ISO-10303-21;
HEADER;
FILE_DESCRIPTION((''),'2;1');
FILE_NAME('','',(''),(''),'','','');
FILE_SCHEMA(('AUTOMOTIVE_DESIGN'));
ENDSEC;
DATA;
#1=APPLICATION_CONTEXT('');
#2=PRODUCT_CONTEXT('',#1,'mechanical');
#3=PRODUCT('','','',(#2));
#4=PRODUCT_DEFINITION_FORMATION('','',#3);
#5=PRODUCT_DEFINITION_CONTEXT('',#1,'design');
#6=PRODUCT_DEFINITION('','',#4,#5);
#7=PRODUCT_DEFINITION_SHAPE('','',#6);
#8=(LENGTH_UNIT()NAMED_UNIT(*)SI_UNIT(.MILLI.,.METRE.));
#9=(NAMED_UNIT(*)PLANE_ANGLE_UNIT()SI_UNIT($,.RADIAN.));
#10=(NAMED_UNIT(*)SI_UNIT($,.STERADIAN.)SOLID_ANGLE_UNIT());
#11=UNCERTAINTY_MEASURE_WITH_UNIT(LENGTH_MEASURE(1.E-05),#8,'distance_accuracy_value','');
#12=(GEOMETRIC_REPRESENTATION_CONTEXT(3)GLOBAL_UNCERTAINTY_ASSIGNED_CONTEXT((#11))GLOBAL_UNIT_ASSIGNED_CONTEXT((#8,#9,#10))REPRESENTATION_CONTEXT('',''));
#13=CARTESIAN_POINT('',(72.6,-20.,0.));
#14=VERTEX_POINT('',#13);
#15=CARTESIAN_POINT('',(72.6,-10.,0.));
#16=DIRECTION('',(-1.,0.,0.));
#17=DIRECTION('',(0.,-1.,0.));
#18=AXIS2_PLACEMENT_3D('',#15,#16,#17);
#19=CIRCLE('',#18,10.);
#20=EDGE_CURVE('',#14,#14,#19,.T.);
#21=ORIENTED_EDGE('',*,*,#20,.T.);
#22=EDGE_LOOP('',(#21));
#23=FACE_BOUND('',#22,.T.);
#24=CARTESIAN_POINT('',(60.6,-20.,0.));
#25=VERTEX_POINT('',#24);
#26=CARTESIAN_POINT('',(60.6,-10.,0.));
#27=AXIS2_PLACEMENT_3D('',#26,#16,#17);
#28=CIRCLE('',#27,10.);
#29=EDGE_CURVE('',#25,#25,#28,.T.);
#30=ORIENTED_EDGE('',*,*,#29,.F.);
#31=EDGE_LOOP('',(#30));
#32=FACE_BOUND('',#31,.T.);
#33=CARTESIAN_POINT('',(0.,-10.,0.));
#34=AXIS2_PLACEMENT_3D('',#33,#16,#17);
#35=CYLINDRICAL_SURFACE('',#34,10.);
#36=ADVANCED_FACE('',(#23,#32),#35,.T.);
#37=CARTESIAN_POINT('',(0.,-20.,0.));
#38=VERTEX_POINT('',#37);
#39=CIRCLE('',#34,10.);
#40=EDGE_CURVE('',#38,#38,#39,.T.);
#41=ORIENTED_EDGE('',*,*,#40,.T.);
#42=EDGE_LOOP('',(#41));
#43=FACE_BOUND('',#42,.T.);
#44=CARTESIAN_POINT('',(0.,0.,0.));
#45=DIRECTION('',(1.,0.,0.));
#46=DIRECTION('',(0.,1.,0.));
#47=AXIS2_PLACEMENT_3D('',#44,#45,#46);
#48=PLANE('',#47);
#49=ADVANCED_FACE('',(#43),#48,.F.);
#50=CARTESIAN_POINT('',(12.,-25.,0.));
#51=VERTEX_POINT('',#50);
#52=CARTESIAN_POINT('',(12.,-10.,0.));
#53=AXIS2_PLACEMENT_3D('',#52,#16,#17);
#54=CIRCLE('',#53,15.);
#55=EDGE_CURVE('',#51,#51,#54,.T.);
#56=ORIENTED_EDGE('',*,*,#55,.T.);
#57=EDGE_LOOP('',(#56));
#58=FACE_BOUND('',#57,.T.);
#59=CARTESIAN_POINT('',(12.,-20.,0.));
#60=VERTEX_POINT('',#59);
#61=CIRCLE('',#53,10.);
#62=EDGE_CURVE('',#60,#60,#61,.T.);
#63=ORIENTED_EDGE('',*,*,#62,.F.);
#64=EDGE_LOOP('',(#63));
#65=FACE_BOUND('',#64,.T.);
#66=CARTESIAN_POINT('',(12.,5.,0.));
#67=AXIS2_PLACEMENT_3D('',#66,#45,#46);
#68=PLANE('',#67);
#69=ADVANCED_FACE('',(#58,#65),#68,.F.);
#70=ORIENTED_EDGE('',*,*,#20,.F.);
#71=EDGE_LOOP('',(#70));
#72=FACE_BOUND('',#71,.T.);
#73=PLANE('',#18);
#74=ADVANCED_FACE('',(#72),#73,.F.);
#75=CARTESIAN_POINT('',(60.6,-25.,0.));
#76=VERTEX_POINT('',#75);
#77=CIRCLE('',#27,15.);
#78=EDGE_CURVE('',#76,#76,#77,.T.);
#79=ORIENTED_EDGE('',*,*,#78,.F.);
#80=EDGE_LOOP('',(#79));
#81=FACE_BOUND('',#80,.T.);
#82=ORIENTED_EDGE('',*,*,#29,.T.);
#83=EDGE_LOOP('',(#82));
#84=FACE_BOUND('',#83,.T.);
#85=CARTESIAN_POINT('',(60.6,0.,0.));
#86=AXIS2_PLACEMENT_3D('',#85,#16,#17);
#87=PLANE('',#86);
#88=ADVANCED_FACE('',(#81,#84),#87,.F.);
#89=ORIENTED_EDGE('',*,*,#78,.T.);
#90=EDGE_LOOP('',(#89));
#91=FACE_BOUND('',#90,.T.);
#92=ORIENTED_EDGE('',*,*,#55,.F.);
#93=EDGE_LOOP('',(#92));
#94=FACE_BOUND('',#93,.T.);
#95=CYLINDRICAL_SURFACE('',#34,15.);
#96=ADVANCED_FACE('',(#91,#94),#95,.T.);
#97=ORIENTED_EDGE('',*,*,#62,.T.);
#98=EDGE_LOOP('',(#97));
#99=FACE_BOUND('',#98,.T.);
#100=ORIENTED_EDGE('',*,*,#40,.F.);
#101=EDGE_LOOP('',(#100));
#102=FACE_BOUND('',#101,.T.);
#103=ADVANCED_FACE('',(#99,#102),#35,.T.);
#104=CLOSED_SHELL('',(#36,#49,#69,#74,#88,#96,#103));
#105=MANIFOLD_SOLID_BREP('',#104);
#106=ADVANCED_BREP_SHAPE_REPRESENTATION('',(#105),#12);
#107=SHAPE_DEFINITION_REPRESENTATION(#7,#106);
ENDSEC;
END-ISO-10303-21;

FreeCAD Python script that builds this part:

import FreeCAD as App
import Part
import Sketcher
Q = App.Units.Quantity

doc = App.newDocument("Part")
params = doc.addObject("Spreadsheet::Sheet", "Params")
for row, (alias, value) in enumerate([
    ("sketch1_width", "12 mm"),
    ("sketch1_height", "10 mm"),
    ("sketch1_height2", "5 mm"),
    ("sketch1_width2", "72.6 mm"),
    ("revolution_angle", "360 deg"),
], start=1):
    params.set(f"A{row}", alias)
    params.set(f"B{row}", "=" + value)
    params.setAlias(f"B{row}", alias)

body = doc.addObject("PartDesign::Body", "Body")

# Sketch on XY plane
sketch1 = doc.addObject("Sketcher::SketchObject", "Sketch")
body.addObject(sketch1)
sketch1.AttachmentSupport = (doc.XY_Plane, [""])
sketch1.MapMode = "FlatFace"
sketch1.addGeometry(Part.LineSegment(App.Vector(0, 0, 0), App.Vector(0, -10, 0)), False)
sketch1.addGeometry(Part.LineSegment(App.Vector(0, -10, 0), App.Vector(72.6, -10, 0)), False)
sketch1.addGeometry(Part.LineSegment(App.Vector(72.6, -10, 0), App.Vector(72.6, 0, 0)), False)
sketch1.addGeometry(Part.LineSegment(App.Vector(72.6, 0, 0), App.Vector(60.6, 0, 0)), False)
sketch1.addGeometry(Part.LineSegment(App.Vector(60.6, 0, 0), App.Vector(60.6, 5, 0)), False)
sketch1.addGeometry(Part.LineSegment(App.Vector(60.6, 5, 0), App.Vector(12, 5, 0)), False)
sketch1.addGeometry(Part.LineSegment(App.Vector(12, 5, 0), App.Vector(12, 0, 0)), False)
sketch1.addGeometry(Part.LineSegment(App.Vector(12, 0, 0), App.Vector(0, 0, 0)), False)
sketch1.addGeometry(Part.LineSegment(App.Vector(0, -10, 0), App.Vector(72.6, -10, 0)), True)  # axis
sketch1.addConstraint(Sketcher.Constraint("Coincident", 0, 2, 1, 1))
sketch1.addConstraint(Sketcher.Constraint("Coincident", 1, 2, 2, 1))
sketch1.addConstraint(Sketcher.Constraint("Coincident", 2, 2, 3, 1))
sketch1.addConstraint(Sketcher.Constraint("Coincident", 3, 2, 4, 1))
sketch1.addConstraint(Sketcher.Constraint("Coincident", 4, 2, 5, 1))
sketch1.addConstraint(Sketcher.Constraint("Coincident", 5, 2, 6, 1))
sketch1.addConstraint(Sketcher.Constraint("Coincident", 6, 2, 7, 1))
sketch1.addConstraint(Sketcher.Constraint("Coincident", 7, 2, 0, 1))
sketch1.addConstraint(Sketcher.Constraint("Vertical", 0))
sketch1.addConstraint(Sketcher.Constraint("Horizontal", 1))
sketch1.addConstraint(Sketcher.Constraint("Vertical", 2))
sketch1.addConstraint(Sketcher.Constraint("Horizontal", 3))
sketch1.addConstraint(Sketcher.Constraint("Vertical", 4))
sketch1.addConstraint(Sketcher.Constraint("Horizontal", 5))
sketch1.addConstraint(Sketcher.Constraint("Vertical", 6))
sketch1.addConstraint(Sketcher.Constraint("Horizontal", 7))
sketch1.addConstraint(Sketcher.Constraint("Horizontal", 8))
sketch1.addConstraint(Sketcher.Constraint("Coincident", 7, 2, -1, 1))
sketch1.addConstraint(Sketcher.Constraint("Coincident", 8, 1, 0, 2))
sketch1.addConstraint(Sketcher.Constraint("PointOnObject", 2, 2, -1))
sketch1.addConstraint(Sketcher.Constraint("Vertical", 2, 2, 8, 2))
sketch1.addConstraint(Sketcher.Constraint("Equal", 3, 7))
sketch1.addConstraint(Sketcher.Constraint("DistanceX", 3, 2, 3, 1, Q("12 mm")))
sketch1.addConstraint(Sketcher.Constraint("DistanceY", 0, 2, 0, 1, Q("10 mm")))
sketch1.addConstraint(Sketcher.Constraint("DistanceY", 4, 1, 4, 2, Q("5 mm")))
sketch1.addConstraint(Sketcher.Constraint("DistanceX", 1, 1, 1, 2, Q("72.6 mm")))
sketch1.setExpression("Constraints[22]", "Params.sketch1_width")
sketch1.setExpression("Constraints[23]", "Params.sketch1_height")
sketch1.setExpression("Constraints[24]", "Params.sketch1_height2")
sketch1.setExpression("Constraints[25]", "Params.sketch1_width2")
revolution = doc.addObject("PartDesign::Revolution", "Revolution")
body.addObject(revolution)
revolution.Profile = sketch1
revolution.ReferenceAxis = (sketch1, ["Axis0"])
revolution.setExpression("Angle", "Params.revolution_angle")

doc.recompute()
